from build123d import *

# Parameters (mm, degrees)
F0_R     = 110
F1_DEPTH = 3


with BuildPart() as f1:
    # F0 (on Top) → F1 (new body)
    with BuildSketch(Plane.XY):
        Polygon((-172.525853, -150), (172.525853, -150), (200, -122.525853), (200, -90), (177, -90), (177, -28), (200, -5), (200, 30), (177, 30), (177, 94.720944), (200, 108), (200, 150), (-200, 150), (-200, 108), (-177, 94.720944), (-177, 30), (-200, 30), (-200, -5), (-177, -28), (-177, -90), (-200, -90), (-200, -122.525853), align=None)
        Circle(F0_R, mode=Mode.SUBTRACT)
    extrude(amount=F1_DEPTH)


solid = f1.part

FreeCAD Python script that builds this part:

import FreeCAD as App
import Part
import Sketcher
from FreeCAD import Vector
Q = App.Units.Quantity


def add_polygon(sketch, points):
    """Adds a closed chain of lines whose ends are joined by coincident constraints."""
    first, n = sketch.GeometryCount, len(points)
    for a, b in zip(points, points[1:] + points[:1]):
        sketch.addGeometry(Part.LineSegment(App.Vector(*a, 0), App.Vector(*b, 0)), False)
    for i in range(n):
        sketch.addConstraint(Sketcher.Constraint("Coincident", first + i, 2, first + (i + 1) % n, 1))

doc = App.newDocument("Part")
body = doc.addObject("PartDesign::Body", "Body")

sketch1 = body.newObject("Sketcher::SketchObject", "Sketch")
sketch1.AttachmentSupport = (doc.getObject("XY_Plane"), [""])
sketch1.MapMode = "FlatFace"
add_polygon(sketch1, [(-173, -150), (173, -150), (200, -123), (200, -90), (177, -90), (177, -28), (200, -5), (200, 30), (177, 30), (177, 95), (200, 108), (200, 150), (-200, 150), (-200, 108), (-177, 95), (-177, 30), (-200, 30), (-200, -5), (-177, -28), (-177, -90), (-200, -90), (-200, -123)])
sketch1.addGeometry(Part.Circle(Vector(0, 0, 0), Vector(0, 0, 1), 110), False)
sketch1.addConstraint(Sketcher.Constraint("Horizontal", 0))
sketch1.addConstraint(Sketcher.Constraint("Vertical", 2))
sketch1.addConstraint(Sketcher.Constraint("Horizontal", 3))
sketch1.addConstraint(Sketcher.Constraint("Vertical", 4))
sketch1.addConstraint(Sketcher.Constraint("Vertical", 6))
sketch1.addConstraint(Sketcher.Constraint("Horizontal", 7))
sketch1.addConstraint(Sketcher.Constraint("Vertical", 8))
sketch1.addConstraint(Sketcher.Constraint("Vertical", 10))
sketch1.addConstraint(Sketcher.Constraint("Horizontal", 11))
sketch1.addConstraint(Sketcher.Constraint("Vertical", 12))
sketch1.addConstraint(Sketcher.Constraint("Vertical", 14))
sketch1.addConstraint(Sketcher.Constraint("Horizontal", 15))
sketch1.addConstraint(Sketcher.Constraint("Vertical", 16))
sketch1.addConstraint(Sketcher.Constraint("Vertical", 18))
sketch1.addConstraint(Sketcher.Constraint("Horizontal", 19))
sketch1.addConstraint(Sketcher.Constraint("Vertical", 20))
sketch1.addConstraint(Sketcher.Constraint("Coincident", 22, 3, -1, 1))
sketch1.addConstraint(Sketcher.Constraint("Symmetric", 9, 2, 12, 2, -2))
sketch1.addConstraint(Sketcher.Constraint("Symmetric", 8, 2, 13, 2, -2))
sketch1.addConstraint(Sketcher.Constraint("Symmetric", 6, 2, 15, 2, -2))
sketch1.addConstraint(Sketcher.Constraint("Symmetric", 4, 2, 17, 2, -2))
sketch1.addConstraint(Sketcher.Constraint("Symmetric", 2, 2, 19, 2, -2))
sketch1.addConstraint(Sketcher.Constraint("Parallel", 1, 5))
sketch1.addConstraint(Sketcher.Constraint("Perpendicular", 5, 17))
sketch1.addConstraint(Sketcher.Constraint("Parallel", 17, 21))
sketch1.addConstraint(Sketcher.Constraint("Horizontal", 5, 2, 16, 2))
sketch1.addConstraint(Sketcher.Constraint("Horizontal", 1, 2, 20, 2))
sketch1.addConstraint(Sketcher.Constraint("Vertical", 2, 2, 5, 2))
sketch1.addConstraint(Sketcher.Constraint("Vertical", 4, 2, 7, 2))
sketch1.addConstraint(Sketcher.Constraint("Vertical", 6, 2, 9, 2))
sketch1.addConstraint(Sketcher.Constraint("Diameter", 22, Q("220 mm")))
sketch1.addConstraint(Sketcher.Constraint("DistanceX", 3, 2, 3, 1, Q("23 mm")))
sketch1.addConstraint(Sketcher.Constraint("DistanceX", 11, 2, 11, 1, Q("400 mm")))
sketch1.addConstraint(Sketcher.Constraint("DistanceY", 4, 1, 4, 2, Q("62 mm")))
sketch1.addConstraint(Sketcher.Constraint("DistanceY", 6, 1, 6, 2, Q("35 mm")))
sketch1.addConstraint(Sketcher.Constraint("DistanceY", 10, 1, 10, 2, Q("42 mm")))
sketch1.addConstraint(Sketcher.Constraint("Angle", 9, Q("30 deg")))
sketch1.addConstraint(Sketcher.Constraint("DistanceY", 0, 2, -1, 1, Q("150 mm")))
sketch1.addConstraint(Sketcher.Constraint("DistanceY", 2, 2, -1, 1, Q("90 mm")))
sketch1.addConstraint(Sketcher.Constraint("DistanceY", -1, 1, 9, 2, Q("108 mm")))
sketch1.addConstraint(Sketcher.Constraint("Distance", 1, Q("38.854311 mm")))
pad1 = body.newObject("PartDesign::Pad", "Pad")
pad1.Profile = sketch1
pad1.Length = 3

doc.recompute()
